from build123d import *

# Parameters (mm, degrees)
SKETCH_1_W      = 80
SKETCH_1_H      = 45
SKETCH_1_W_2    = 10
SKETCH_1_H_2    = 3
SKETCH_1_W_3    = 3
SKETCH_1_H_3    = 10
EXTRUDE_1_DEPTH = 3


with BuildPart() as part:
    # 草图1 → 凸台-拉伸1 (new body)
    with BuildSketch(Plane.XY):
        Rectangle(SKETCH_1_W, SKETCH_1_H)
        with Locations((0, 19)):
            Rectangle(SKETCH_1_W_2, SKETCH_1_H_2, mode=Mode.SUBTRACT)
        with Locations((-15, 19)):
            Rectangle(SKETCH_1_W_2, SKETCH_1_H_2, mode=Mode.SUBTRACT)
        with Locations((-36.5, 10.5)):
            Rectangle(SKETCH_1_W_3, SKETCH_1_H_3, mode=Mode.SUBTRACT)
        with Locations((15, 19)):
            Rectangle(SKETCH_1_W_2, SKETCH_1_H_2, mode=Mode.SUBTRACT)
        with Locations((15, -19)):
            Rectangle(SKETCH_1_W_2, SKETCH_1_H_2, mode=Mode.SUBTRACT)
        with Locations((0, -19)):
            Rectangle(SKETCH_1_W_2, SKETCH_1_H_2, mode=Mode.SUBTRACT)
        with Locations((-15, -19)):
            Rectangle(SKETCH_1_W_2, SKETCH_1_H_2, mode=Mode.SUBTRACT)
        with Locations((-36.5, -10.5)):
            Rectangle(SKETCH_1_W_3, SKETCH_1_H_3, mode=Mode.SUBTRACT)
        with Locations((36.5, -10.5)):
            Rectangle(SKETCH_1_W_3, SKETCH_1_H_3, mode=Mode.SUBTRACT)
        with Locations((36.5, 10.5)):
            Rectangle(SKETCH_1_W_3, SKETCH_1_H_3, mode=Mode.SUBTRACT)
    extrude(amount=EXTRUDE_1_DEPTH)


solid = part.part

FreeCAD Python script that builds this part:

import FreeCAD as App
import Part
import Sketcher
Q = App.Units.Quantity


def add_polygon(sketch, points):
    """Adds a closed chain of lines whose ends are joined by coincident constraints."""
    first, n = sketch.GeometryCount, len(points)
    for a, b in zip(points, points[1:] + points[:1]):
        sketch.addGeometry(Part.LineSegment(App.Vector(*a, 0), App.Vector(*b, 0)), False)
    for i in range(n):
        sketch.addConstraint(Sketcher.Constraint("Coincident", first + i, 2, first + (i + 1) % n, 1))

doc = App.newDocument("Part")
params = doc.addObject("Spreadsheet::Sheet", "Params")
for row, (alias, value) in enumerate([
    ("sketch1_width", "80 mm"),
    ("sketch1_width2", "3 mm"),
    ("sketch1_width3", "10 mm"),
    ("sketch1_height", "45 mm"),
    ("pad1_length", "3 mm"),
], start=1):
    params.set(f"A{row}", alias)
    params.set(f"B{row}", "=" + value)
    params.setAlias(f"B{row}", alias)

body = doc.addObject("PartDesign::Body", "Body")

sketch1 = doc.addObject("Sketcher::SketchObject", "Sketch")
body.addObject(sketch1)
sketch1.AttachmentSupport = (doc.XY_Plane, [""])
sketch1.MapMode = "FlatFace"
add_polygon(sketch1, [(-40, 22.5), (-40, -22.5), (40, -22.5), (40, 22.5)])
add_polygon(sketch1, [(-35, -15.5), (-38, -15.5), (-38, -5.5), (-35, -5.5)])
add_polygon(sketch1, [(-10, -20.5), (-20, -20.5), (-20, -17.5), (-10, -17.5)])
add_polygon(sketch1, [(5, -20.5), (-5, -20.5), (-5, -17.5), (5, -17.5)])
add_polygon(sketch1, [(20, -20.5), (10, -20.5), (10, -17.5), (20, -17.5)])
add_polygon(sketch1, [(38, -15.5), (35, -15.5), (35, -5.5), (38, -5.5)])
add_polygon(sketch1, [(-35, 5.5), (-38, 5.5), (-38, 15.5), (-35, 15.5)])
add_polygon(sketch1, [(-10, 17.5), (-20, 17.5), (-20, 20.5), (-10, 20.5)])
add_polygon(sketch1, [(5, 17.5), (-5, 17.5), (-5, 20.5), (5, 20.5)])
add_polygon(sketch1, [(20, 17.5), (10, 17.5), (10, 20.5), (20, 20.5)])
add_polygon(sketch1, [(38, 5.5), (35, 5.5), (35, 15.5), (38, 15.5)])
sketch1.addConstraint(Sketcher.Constraint("Vertical", 0))
sketch1.addConstraint(Sketcher.Constraint("Horizontal", 1))
sketch1.addConstraint(Sketcher.Constraint("Vertical", 2))
sketch1.addConstraint(Sketcher.Constraint("Horizontal", 3))
sketch1.addConstraint(Sketcher.Constraint("Horizontal", 4))
sketch1.addConstraint(Sketcher.Constraint("Vertical", 5))
sketch1.addConstraint(Sketcher.Constraint("Horizontal", 6))
sketch1.addConstraint(Sketcher.Constraint("Vertical", 7))
sketch1.addConstraint(Sketcher.Constraint("Horizontal", 8))
sketch1.addConstraint(Sketcher.Constraint("Vertical", 9))
sketch1.addConstraint(Sketcher.Constraint("Horizontal", 10))
sketch1.addConstraint(Sketcher.Constraint("Vertical", 11))
sketch1.addConstraint(Sketcher.Constraint("Horizontal", 12))
sketch1.addConstraint(Sketcher.Constraint("Vertical", 13))
sketch1.addConstraint(Sketcher.Constraint("Horizontal", 14))
sketch1.addConstraint(Sketcher.Constraint("Vertical", 15))
sketch1.addConstraint(Sketcher.Constraint("Horizontal", 16))
sketch1.addConstraint(Sketcher.Constraint("Vertical", 17))
sketch1.addConstraint(Sketcher.Constraint("Horizontal", 18))
sketch1.addConstraint(Sketcher.Constraint("Vertical", 19))
sketch1.addConstraint(Sketcher.Constraint("Horizontal", 20))
sketch1.addConstraint(Sketcher.Constraint("Vertical", 21))
sketch1.addConstraint(Sketcher.Constraint("Horizontal", 22))
sketch1.addConstraint(Sketcher.Constraint("Vertical", 23))
sketch1.addConstraint(Sketcher.Constraint("Horizontal", 24))
sketch1.addConstraint(Sketcher.Constraint("Vertical", 25))
sketch1.addConstraint(Sketcher.Constraint("Horizontal", 26))
sketch1.addConstraint(Sketcher.Constraint("Vertical", 27))
sketch1.addConstraint(Sketcher.Constraint("Horizontal", 28))
sketch1.addConstraint(Sketcher.Constraint("Vertical", 29))
sketch1.addConstraint(Sketcher.Constraint("Horizontal", 30))
sketch1.addConstraint(Sketcher.Constraint("Vertical", 31))
sketch1.addConstraint(Sketcher.Constraint("Horizontal", 32))
sketch1.addConstraint(Sketcher.Constraint("Vertical", 33))
sketch1.addConstraint(Sketcher.Constraint("Horizontal", 34))
sketch1.addConstraint(Sketcher.Constraint("Vertical", 35))
sketch1.addConstraint(Sketcher.Constraint("Horizontal", 36))
sketch1.addConstraint(Sketcher.Constraint("Vertical", 37))
sketch1.addConstraint(Sketcher.Constraint("Horizontal", 38))
sketch1.addConstraint(Sketcher.Constraint("Vertical", 39))
sketch1.addConstraint(Sketcher.Constraint("Horizontal", 40))
sketch1.addConstraint(Sketcher.Constraint("Vertical", 41))
sketch1.addConstraint(Sketcher.Constraint("Horizontal", 42))
sketch1.addConstraint(Sketcher.Constraint("Vertical", 43))
sketch1.addConstraint(Sketcher.Constraint("Symmetric", 0, 2, 2, 2, -1, 1))
sketch1.addConstraint(Sketcher.Constraint("Symmetric", 22, 2, 24, 2, -1, 1))
sketch1.addConstraint(Sketcher.Constraint("Symmetric", 20, 2, 26, 2, -1, 1))
sketch1.addConstraint(Sketcher.Constraint("Symmetric", 18, 2, 28, 2, -1, 1))
sketch1.addConstraint(Sketcher.Constraint("Symmetric", 16, 2, 30, 2, -1, 1))
sketch1.addConstraint(Sketcher.Constraint("Symmetric", 14, 2, 32, 2, -1, 1))
sketch1.addConstraint(Sketcher.Constraint("Symmetric", 12, 2, 34, 2, -1, 1))
sketch1.addConstraint(Sketcher.Constraint("Symmetric", 10, 2, 36, 2, -1, 1))
sketch1.addConstraint(Sketcher.Constraint("Symmetric", 8, 2, 38, 2, -1, 1))
sketch1.addConstraint(Sketcher.Constraint("Symmetric", 6, 2, 40, 2, -1, 1))
sketch1.addConstraint(Sketcher.Constraint("Symmetric", 4, 2, 42, 2, -1, 1))
sketch1.addConstraint(Sketcher.Constraint("Symmetric", 11, 2, 16, 2, -2))
sketch1.addConstraint(Sketcher.Constraint("Symmetric", 9, 2, 18, 2, -2))
sketch1.addConstraint(Sketcher.Constraint("Symmetric", 7, 2, 20, 2, -2))
sketch1.addConstraint(Sketcher.Constraint("Symmetric", 5, 2, 22, 2, -2))
sketch1.addConstraint(Sketcher.Constraint("Horizontal", 11, 2, 12, 2))
sketch1.addConstraint(Sketcher.Constraint("Horizontal", 10, 2, 13, 2))
sketch1.addConstraint(Sketcher.Constraint("Vertical", 13, 2, 32, 2))
sketch1.addConstraint(Sketcher.Constraint("Equal", 10, 12))
sketch1.addConstraint(Sketcher.Constraint("Equal", 38, 5))
sketch1.addConstraint(Sketcher.Constraint("Equal", 42, 9))
sketch1.addConstraint(Sketcher.Constraint("DistanceX", 1, 1, 1, 2, Q("80 mm")))
sketch1.addConstraint(Sketcher.Constraint("DistanceX", 4, 2, 4, 1, Q("3 mm")))
sketch1.addConstraint(Sketcher.Constraint("DistanceX", 8, 2, 8, 1, Q("10 mm")))
sketch1.addConstraint(Sketcher.Constraint("DistanceY", 0, 2, 0, 1, Q("45 mm")))
sketch1.addConstraint(Sketcher.Constraint("DistanceX", 4, 2, -1, 1, Q("38 mm")))
sketch1.addConstraint(Sketcher.Constraint("DistanceX", 8, 2, -1, 1, Q("20 mm")))
sketch1.addConstraint(Sketcher.Constraint("DistanceY", 0, 2, 4, 2, Q("7 mm")))
sketch1.addConstraint(Sketcher.Constraint("DistanceY", 8, 2, 7, 2, Q("5 mm")))
sketch1.setExpression("Constraints[109]", "Params.sketch1_width")
sketch1.setExpression("Constraints[110]", "Params.sketch1_width2")
sketch1.setExpression("Constraints[111]", "Params.sketch1_width3")
sketch1.setExpression("Constraints[112]", "Params.sketch1_height")
pad1 = doc.addObject("PartDesign::Pad", "Pad")
body.addObject(pad1)
pad1.Profile = sketch1
pad1.setExpression("Length", "Params.pad1_length")

doc.recompute()
